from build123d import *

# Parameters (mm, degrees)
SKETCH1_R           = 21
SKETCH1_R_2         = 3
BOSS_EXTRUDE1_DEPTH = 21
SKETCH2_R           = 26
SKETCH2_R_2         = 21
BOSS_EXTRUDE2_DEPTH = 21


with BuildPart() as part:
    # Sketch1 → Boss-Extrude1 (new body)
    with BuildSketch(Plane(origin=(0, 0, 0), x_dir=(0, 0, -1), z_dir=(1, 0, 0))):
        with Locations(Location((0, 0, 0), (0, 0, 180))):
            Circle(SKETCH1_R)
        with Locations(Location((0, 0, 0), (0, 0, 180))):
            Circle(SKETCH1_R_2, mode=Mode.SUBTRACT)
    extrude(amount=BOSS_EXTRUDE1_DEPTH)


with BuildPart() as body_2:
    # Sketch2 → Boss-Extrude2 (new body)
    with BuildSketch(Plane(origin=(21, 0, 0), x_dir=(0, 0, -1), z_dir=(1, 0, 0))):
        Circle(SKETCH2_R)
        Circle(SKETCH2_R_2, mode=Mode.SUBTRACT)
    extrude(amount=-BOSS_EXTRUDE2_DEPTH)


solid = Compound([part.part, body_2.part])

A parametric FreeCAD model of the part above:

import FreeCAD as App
import Part
import Sketcher
from FreeCAD import Vector

doc = App.newDocument("Part")
body = doc.addObject("PartDesign::Body", "Body")

sketch1 = body.newObject("Sketcher::SketchObject", "Sketch")
sketch1.AttachmentSupport = (doc.getObject("YZ_Plane"), [""])
sketch1.MapMode = "FlatFace"
sketch1.addGeometry([
    Part.Circle(Vector(0, 0, 0), Vector(0, 0, 1), 21),
    Part.Circle(Vector(0, 0, 0), Vector(0, 0, 1), 3),
], False)
sketch1.addConstraint([
    Sketcher.Constraint("Coincident", 0, 3, -1, 1),
    Sketcher.Constraint("Coincident", 1, 3, -1, 1),
    Sketcher.Constraint("Diameter", 0, 42.0),
    Sketcher.Constraint("Diameter", 1, 6.0),
])
pad1 = body.newObject("PartDesign::Pad", "Pad")
pad1.Profile = sketch1
pad1.Length = 21
body2 = doc.addObject("PartDesign::Body", "Body001")

sketch2 = body2.newObject("Sketcher::SketchObject", "Sketch001")
sketch2.AttachmentSupport = (doc.getObject("YZ_Plane001"), [""])
sketch2.MapMode = "FlatFace"
sketch2.AttachmentOffset = App.Placement(Vector(0, 0, 21), App.Rotation())
sketch2.addGeometry([
    Part.Circle(Vector(0, 0, 0), Vector(0, 0, 1), 26),
    Part.Circle(Vector(0, 0, 0), Vector(0, 0, 1), 21),
], False)
sketch2.addConstraint([
    Sketcher.Constraint("Coincident", 0, 3, -1, 1),
    Sketcher.Constraint("Coincident", 1, 3, -1, 1),
    Sketcher.Constraint("Diameter", 0, 52.0),
    Sketcher.Constraint("Diameter", 1, 42.0),
])
pad2 = body2.newObject("PartDesign::Pad", "Pad001")
pad2.Profile = sketch2
pad2.Length = 21
pad2.Reversed = True

doc.recompute()
